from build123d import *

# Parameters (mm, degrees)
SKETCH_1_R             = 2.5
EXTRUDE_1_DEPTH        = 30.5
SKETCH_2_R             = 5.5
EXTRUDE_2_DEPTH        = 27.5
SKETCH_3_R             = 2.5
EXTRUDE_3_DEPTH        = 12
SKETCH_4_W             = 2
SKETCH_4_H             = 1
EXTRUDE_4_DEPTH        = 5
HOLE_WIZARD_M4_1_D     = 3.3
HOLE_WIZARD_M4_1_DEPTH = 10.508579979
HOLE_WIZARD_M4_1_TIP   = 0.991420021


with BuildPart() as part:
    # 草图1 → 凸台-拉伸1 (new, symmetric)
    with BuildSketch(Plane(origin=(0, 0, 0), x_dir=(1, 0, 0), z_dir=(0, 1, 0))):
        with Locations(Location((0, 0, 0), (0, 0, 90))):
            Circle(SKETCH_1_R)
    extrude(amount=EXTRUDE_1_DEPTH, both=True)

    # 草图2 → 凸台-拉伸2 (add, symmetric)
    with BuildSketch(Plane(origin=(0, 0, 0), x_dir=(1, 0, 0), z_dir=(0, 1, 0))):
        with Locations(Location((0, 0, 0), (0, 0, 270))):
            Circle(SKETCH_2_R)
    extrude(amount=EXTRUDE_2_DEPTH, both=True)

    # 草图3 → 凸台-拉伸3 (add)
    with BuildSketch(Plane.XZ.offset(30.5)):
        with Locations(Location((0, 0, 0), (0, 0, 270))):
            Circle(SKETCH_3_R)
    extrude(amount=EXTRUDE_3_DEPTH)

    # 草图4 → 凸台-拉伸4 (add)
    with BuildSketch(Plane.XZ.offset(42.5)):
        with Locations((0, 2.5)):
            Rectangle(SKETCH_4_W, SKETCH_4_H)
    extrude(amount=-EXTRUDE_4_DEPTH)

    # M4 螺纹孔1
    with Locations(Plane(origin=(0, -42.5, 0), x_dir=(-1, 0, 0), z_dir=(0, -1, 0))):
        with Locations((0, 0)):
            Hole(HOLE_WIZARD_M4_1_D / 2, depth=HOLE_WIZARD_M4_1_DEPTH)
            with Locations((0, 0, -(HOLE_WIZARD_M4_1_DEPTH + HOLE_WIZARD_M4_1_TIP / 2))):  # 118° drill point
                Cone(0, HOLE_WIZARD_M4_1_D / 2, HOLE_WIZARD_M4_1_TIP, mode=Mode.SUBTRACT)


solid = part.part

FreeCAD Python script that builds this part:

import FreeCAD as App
import Part
import Sketcher
from FreeCAD import Vector


def add_polygon(sketch, points):
    """Adds a closed chain of lines whose ends are joined by coincident constraints."""
    first, n = sketch.GeometryCount, len(points)
    for a, b in zip(points, points[1:] + points[:1]):
        sketch.addGeometry(Part.LineSegment(App.Vector(*a, 0), App.Vector(*b, 0)), False)
    for i in range(n):
        sketch.addConstraint(Sketcher.Constraint("Coincident", first + i, 2, first + (i + 1) % n, 1))

doc = App.newDocument("Part")
params = doc.addObject("Spreadsheet::Sheet", "Params")
for row, (alias, value) in enumerate([
    ("sketch1_diameter", "5 mm"),
    ("pad1_length", "61 mm"),
    ("sketch2_diameter", "11 mm"),
    ("pad2_length", "55 mm"),
    ("sketch3_diameter", "5 mm"),
    ("pad3_length", "12 mm"),
    ("sketch4_width", "2 mm"),
    ("sketch4_height", "1 mm"),
    ("pad4_length", "5 mm"),
    ("sketch5_diameter", "3.3 mm"),
    ("hole_diameter", "3.3 mm"),
    ("hole_depth", "10.50858 mm"),
], start=1):
    params.set(f"A{row}", alias)
    params.set(f"B{row}", "=" + value)
    params.setAlias(f"B{row}", alias)

body = doc.addObject("PartDesign::Body", "Body")

sketch1 = body.newObject("Sketcher::SketchObject", "Sketch")
sketch1.AttachmentSupport = (doc.getObject("XZ_Plane"), [""])
sketch1.MapMode = "FlatFace"
sketch1.addGeometry(Part.Circle(Vector(0, 0, 0), Vector(0, 0, 1), 2.5), False)
sketch1.addConstraint([
    Sketcher.Constraint("Coincident", 0, 3, -1, 1),
    Sketcher.Constraint("Diameter", 0, 5.0),
])
sketch1.setExpression("Constraints[1]", "Params.sketch1_diameter")
pad1 = body.newObject("PartDesign::Pad", "Pad")
pad1.Profile = sketch1
pad1.setExpression("Length", "Params.pad1_length")
pad1.Midplane = True

sketch2 = body.newObject("Sketcher::SketchObject", "Sketch001")
sketch2.AttachmentSupport = (doc.getObject("XZ_Plane"), [""])
sketch2.MapMode = "FlatFace"
sketch2.addGeometry(Part.Circle(Vector(0, 0, 0), Vector(0, 0, 1), 6), False)
sketch2.addConstraint([
    Sketcher.Constraint("Coincident", 0, 3, -1, 1),
    Sketcher.Constraint("Diameter", 0, 11.0),
])
sketch2.setExpression("Constraints[1]", "Params.sketch2_diameter")
pad2 = body.newObject("PartDesign::Pad", "Pad001")
pad2.Profile = sketch2
pad2.setExpression("Length", "Params.pad2_length")
pad2.Midplane = True

sketch3 = body.newObject("Sketcher::SketchObject", "Sketch002")
sketch3.AttachmentSupport = (doc.getObject("XZ_Plane"), [""])
sketch3.MapMode = "FlatFace"
sketch3.AttachmentOffset = App.Placement(Vector(0, 0, 30.5), App.Rotation())
sketch3.addGeometry(Part.Circle(Vector(0, 0, 0), Vector(0, 0, 1), 2.5), False)
sketch3.addConstraint([
    Sketcher.Constraint("Coincident", 0, 3, -1, 1),
    Sketcher.Constraint("Diameter", 0, 5.0),
])
sketch3.setExpression("Constraints[1]", "Params.sketch3_diameter")
pad3 = body.newObject("PartDesign::Pad", "Pad002")
pad3.Profile = sketch3
pad3.setExpression("Length", "Params.pad3_length")

sketch4 = body.newObject("Sketcher::SketchObject", "Sketch003")
sketch4.AttachmentSupport = (doc.getObject("XZ_Plane"), [""])
sketch4.MapMode = "FlatFace"
sketch4.AttachmentOffset = App.Placement(Vector(0, 0, 42.5), App.Rotation())
add_polygon(sketch4, [(-1, 3), (-1, 2), (1, 2), (1, 3)])
sketch4.addConstraint([
    Sketcher.Constraint("Vertical", 0),
    Sketcher.Constraint("Horizontal", 1),
    Sketcher.Constraint("Vertical", 2),
    Sketcher.Constraint("Horizontal", 3),
    Sketcher.Constraint("DistanceX", 1, 1, 1, 2, 2.0),
    Sketcher.Constraint("DistanceY", 0, 2, 0, 1, 1.0),
    Sketcher.Constraint("DistanceX", 0, 2, -1, 1, 1.0),
    Sketcher.Constraint("DistanceY", -1, 1, 0, 2, 2.0),
])
sketch4.setExpression("Constraints[8]", "Params.sketch4_width")
sketch4.setExpression("Constraints[9]", "Params.sketch4_height")
pad4 = body.newObject("PartDesign::Pad", "Pad003")
pad4.Profile = sketch4
pad4.setExpression("Length", "Params.pad4_length")
pad4.Reversed = True

sketch5 = body.newObject("Sketcher::SketchObject", "Sketch004")
sketch5.AttachmentSupport = (doc.getObject("XZ_Plane"), [""])
sketch5.MapMode = "FlatFace"
sketch5.AttachmentOffset = App.Placement(Vector(0, 0, 42.5), App.Rotation())
sketch5.addGeometry(Part.Circle(Vector(0, 0, 0), Vector(0, 0, 1), 1.6), False)
sketch5.addConstraint([
    Sketcher.Constraint("Coincident", 0, 3, -1, 1),
    Sketcher.Constraint("Diameter", 0, 3.3),
])
sketch5.setExpression("Constraints[1]", "Params.sketch5_diameter")
doc.recompute()
hole = body.newObject("PartDesign::Hole", "Hole")
hole.Profile = sketch5
hole.ThreadType = "None"
hole.setExpression("Diameter", "Params.hole_diameter")
hole.DepthType = "Dimension"
hole.setExpression("Depth", "Params.hole_depth")
hole.DrillPoint = "Angled"
hole.DrillPointAngle = 118

doc.recompute()
